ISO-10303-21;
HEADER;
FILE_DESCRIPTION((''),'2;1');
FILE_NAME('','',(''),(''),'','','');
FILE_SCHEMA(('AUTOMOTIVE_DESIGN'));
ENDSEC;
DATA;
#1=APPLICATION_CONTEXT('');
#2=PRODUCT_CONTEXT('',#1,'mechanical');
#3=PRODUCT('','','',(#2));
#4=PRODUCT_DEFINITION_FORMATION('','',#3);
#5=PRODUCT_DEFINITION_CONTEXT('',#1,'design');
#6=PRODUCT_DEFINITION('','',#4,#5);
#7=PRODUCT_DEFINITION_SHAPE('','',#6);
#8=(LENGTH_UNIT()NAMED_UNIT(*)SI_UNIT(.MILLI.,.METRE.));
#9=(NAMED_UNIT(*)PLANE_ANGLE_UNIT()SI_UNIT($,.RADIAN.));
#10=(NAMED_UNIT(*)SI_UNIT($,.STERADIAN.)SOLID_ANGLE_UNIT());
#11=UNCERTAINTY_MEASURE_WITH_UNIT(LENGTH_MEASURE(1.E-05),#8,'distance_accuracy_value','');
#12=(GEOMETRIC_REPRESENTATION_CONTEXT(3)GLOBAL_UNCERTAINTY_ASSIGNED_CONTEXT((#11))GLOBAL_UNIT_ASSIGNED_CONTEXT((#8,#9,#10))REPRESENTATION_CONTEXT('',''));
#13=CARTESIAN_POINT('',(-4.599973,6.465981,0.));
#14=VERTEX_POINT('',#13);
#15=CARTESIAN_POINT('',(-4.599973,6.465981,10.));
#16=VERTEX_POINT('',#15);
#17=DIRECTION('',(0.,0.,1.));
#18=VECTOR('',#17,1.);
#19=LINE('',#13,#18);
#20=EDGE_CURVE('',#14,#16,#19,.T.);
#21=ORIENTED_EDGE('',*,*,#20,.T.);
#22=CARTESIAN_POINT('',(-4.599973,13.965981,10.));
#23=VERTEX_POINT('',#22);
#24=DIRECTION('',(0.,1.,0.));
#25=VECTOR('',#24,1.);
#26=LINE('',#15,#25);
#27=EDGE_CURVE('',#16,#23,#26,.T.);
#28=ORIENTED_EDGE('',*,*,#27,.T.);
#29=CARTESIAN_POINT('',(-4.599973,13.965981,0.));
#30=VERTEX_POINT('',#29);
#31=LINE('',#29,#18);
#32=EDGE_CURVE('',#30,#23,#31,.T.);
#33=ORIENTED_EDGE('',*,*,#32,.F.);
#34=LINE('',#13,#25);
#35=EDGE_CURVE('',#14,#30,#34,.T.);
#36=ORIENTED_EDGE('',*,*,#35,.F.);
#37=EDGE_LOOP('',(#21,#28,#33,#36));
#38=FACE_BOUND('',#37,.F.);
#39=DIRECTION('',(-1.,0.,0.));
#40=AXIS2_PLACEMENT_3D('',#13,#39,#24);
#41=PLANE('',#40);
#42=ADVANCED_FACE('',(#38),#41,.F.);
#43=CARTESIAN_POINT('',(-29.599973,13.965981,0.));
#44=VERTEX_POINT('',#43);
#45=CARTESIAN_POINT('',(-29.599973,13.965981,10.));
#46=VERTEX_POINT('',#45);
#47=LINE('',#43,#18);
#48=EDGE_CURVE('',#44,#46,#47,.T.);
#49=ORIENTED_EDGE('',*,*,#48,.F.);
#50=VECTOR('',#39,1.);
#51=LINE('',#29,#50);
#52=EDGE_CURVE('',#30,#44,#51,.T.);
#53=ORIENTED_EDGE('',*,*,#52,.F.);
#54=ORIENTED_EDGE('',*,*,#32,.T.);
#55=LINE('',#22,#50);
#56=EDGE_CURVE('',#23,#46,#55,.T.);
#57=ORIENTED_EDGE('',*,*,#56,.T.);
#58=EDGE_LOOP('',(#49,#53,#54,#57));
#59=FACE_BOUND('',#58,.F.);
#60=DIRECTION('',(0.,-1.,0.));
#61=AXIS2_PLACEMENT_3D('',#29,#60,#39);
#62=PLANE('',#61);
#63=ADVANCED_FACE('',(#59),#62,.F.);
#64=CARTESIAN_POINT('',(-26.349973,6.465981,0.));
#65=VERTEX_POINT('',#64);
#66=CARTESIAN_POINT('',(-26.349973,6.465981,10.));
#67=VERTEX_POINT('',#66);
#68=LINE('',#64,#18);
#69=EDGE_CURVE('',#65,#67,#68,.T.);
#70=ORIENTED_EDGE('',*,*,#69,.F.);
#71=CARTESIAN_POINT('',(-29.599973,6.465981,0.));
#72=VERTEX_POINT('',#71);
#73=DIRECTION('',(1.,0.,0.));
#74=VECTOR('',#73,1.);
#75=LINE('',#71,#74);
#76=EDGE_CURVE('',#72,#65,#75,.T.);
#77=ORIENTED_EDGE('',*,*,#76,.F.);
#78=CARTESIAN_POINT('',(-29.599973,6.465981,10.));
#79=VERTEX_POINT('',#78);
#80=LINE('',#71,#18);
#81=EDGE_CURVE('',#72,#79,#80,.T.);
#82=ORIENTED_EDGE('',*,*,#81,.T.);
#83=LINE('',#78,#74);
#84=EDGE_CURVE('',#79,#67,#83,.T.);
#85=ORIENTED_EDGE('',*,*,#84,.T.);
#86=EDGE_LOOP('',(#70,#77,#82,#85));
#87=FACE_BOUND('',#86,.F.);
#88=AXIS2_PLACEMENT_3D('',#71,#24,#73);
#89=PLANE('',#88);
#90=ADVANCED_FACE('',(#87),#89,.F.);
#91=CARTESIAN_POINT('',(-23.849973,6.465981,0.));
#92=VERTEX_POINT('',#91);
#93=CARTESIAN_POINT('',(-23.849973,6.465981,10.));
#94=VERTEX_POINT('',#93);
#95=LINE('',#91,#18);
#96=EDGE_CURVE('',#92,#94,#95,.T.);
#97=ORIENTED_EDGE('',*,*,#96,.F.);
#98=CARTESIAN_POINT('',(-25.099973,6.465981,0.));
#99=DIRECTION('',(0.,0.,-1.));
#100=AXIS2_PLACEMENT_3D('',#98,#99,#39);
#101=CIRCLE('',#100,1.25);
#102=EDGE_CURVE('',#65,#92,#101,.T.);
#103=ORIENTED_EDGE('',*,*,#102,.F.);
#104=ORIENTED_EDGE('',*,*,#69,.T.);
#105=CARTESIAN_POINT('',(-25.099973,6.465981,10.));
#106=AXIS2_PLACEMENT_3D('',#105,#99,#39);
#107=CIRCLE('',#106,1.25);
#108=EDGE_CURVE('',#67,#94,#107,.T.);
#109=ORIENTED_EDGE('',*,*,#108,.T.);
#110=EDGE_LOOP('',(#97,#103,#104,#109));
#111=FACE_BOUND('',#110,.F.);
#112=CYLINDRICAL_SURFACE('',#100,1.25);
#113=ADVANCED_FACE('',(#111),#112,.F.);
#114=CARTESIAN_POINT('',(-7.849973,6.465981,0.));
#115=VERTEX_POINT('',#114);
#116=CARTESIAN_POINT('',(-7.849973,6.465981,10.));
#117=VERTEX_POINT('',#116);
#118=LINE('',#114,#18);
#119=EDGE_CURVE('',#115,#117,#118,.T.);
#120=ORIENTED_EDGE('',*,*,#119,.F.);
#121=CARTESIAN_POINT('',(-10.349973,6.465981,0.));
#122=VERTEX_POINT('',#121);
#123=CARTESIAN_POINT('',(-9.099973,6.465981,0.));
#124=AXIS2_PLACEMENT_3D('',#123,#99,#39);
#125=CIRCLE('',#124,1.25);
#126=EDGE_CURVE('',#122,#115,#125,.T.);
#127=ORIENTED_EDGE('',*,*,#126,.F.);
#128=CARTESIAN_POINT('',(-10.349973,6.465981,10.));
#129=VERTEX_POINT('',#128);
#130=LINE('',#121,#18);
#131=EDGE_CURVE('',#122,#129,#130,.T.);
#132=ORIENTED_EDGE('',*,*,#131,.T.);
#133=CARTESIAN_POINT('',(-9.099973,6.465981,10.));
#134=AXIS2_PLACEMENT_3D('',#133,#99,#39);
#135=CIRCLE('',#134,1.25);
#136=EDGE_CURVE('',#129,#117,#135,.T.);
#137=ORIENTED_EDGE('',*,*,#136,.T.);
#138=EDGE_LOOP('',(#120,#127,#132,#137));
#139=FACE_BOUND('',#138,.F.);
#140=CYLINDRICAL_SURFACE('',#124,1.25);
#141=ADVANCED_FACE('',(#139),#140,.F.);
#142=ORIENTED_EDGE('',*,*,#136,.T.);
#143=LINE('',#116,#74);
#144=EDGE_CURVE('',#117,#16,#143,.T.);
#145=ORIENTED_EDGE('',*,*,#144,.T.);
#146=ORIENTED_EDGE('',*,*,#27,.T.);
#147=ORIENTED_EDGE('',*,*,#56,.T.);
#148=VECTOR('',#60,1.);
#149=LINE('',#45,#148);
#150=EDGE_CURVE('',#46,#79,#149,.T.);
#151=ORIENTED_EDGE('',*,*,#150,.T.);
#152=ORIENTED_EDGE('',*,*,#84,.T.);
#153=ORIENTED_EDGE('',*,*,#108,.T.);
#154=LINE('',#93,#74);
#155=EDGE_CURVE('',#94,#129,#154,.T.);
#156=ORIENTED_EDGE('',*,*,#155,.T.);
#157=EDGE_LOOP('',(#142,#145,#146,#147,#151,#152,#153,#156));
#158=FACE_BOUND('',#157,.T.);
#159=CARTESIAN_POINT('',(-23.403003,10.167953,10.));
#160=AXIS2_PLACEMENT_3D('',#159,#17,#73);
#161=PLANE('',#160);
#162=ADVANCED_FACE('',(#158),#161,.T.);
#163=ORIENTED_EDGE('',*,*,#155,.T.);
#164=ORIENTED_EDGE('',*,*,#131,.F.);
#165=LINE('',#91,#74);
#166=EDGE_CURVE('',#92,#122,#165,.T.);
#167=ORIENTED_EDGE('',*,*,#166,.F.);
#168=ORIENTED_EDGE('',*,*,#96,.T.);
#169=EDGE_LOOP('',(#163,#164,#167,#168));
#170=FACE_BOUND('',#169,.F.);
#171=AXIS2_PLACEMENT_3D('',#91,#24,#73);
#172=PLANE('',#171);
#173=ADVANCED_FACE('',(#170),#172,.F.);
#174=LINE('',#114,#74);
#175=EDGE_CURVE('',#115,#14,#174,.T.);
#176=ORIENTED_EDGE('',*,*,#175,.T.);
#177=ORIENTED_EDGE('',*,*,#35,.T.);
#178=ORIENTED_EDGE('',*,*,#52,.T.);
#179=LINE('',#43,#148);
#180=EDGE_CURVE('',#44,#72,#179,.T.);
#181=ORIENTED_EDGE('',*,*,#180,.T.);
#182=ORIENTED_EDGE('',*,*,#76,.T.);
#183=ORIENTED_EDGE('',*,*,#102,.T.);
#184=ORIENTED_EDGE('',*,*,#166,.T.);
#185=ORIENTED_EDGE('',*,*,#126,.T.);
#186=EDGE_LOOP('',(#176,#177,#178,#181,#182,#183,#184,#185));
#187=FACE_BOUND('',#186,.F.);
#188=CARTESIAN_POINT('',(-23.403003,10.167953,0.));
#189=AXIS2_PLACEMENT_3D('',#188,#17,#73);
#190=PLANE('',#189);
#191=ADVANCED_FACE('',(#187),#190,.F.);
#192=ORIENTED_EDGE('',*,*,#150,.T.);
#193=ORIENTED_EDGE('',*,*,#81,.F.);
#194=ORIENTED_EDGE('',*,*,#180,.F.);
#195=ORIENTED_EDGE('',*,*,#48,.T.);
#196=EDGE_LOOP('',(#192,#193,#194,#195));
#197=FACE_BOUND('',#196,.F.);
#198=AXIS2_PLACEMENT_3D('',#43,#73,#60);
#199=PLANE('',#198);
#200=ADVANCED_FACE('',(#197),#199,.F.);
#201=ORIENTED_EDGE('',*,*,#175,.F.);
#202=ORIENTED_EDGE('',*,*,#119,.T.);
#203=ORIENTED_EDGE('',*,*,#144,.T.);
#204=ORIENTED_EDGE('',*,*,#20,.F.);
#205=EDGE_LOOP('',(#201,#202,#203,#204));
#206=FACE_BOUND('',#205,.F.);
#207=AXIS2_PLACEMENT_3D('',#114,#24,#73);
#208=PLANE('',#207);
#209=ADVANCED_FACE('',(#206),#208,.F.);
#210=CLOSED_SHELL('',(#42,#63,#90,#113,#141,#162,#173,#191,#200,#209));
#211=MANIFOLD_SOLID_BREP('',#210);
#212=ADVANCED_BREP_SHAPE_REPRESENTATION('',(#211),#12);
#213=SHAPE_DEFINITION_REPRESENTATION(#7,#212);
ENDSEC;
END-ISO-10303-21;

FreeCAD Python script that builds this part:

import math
import FreeCAD as App
import Part
import Sketcher
from FreeCAD import Vector
Q = App.Units.Quantity

doc = App.newDocument("Part")
body = doc.addObject("PartDesign::Body", "Body")

sketch1 = body.newObject("Sketcher::SketchObject", "Sketch")
sketch1.AttachmentSupport = (doc.getObject("XY_Plane"), [""])
sketch1.MapMode = "FlatFace"
sketch1.addGeometry([
    Part.LineSegment(Vector(-29.599973, 13.965981, 0), Vector(-29.599973, 6.465981, 0)),
    Part.LineSegment(Vector(-29.599973, 6.465981, 0), Vector(-26.349973, 6.465981, 0)),
    Part.ArcOfCircle(Part.Circle(Vector(-25.099973, 6.465981, 0), Vector(0, 0, 1), 1.25), math.radians(0), math.radians(180)),
    Part.LineSegment(Vector(-23.849973, 6.465981, 0), Vector(-10.349973, 6.465981, 0)),
    Part.ArcOfCircle(Part.Circle(Vector(-9.099973, 6.465981, 0), Vector(0, 0, 1), 1.25), math.radians(0), math.radians(180)),
    Part.LineSegment(Vector(-7.849973, 6.465981, 0), Vector(-4.599973, 6.465981, 0)),
    Part.LineSegment(Vector(-4.599973, 6.465981, 0), Vector(-4.599973, 13.965981, 0)),
    Part.LineSegment(Vector(-4.599973, 13.965981, 0), Vector(-29.599973, 13.965981, 0)),
], False)
sketch1.addConstraint([
    Sketcher.Constraint("Coincident", 0, 2, 1, 1),
    Sketcher.Constraint("Coincident", 1, 2, 2, 2),
    Sketcher.Constraint("Coincident", 2, 1, 3, 1),
    Sketcher.Constraint("Coincident", 3, 2, 4, 2),
    Sketcher.Constraint("Coincident", 4, 1, 5, 1),
    Sketcher.Constraint("Coincident", 5, 2, 6, 1),
    Sketcher.Constraint("Coincident", 6, 2, 7, 1),
    Sketcher.Constraint("Coincident", 7, 2, 0, 1),
    Sketcher.Constraint("Vertical", 0),
    Sketcher.Constraint("Horizontal", 1),
    Sketcher.Constraint("Horizontal", 3),
    Sketcher.Constraint("Horizontal", 5),
    Sketcher.Constraint("Vertical", 6),
    Sketcher.Constraint("Horizontal", 7),
    Sketcher.Constraint("Equal", 2, 4),
    Sketcher.Constraint("Horizontal", 2, 3, 4, 3),
    Sketcher.Constraint("Horizontal", 4, 3, 0, 2),
    Sketcher.Constraint("Horizontal", 1, 2, 2, 1),
    Sketcher.Constraint("Horizontal", 3, 2, 4, 1),
    Sketcher.Constraint("Equal", 1, 5),
    Sketcher.Constraint("DistanceX", 7, 2, 7, 1, Q("25 mm")),
    Sketcher.Constraint("Radius", 2, Q("1.25 mm")),
    Sketcher.Constraint("DistanceX", 3, 1, 3, 2, Q("13.5 mm")),
    Sketcher.Constraint("DistanceY", 0, 2, 0, 1, Q("7.5 mm")),
    Sketcher.Constraint("DistanceY", -1, 1, 2, 3, Q("6.465981 mm")),
    Sketcher.Constraint("DistanceX", 2, 3, -1, 1, Q("25.099973 mm")),
])
pad1 = body.newObject("PartDesign::Pad", "Pad")
pad1.Profile = sketch1
pad1.Length = 10

doc.recompute()
